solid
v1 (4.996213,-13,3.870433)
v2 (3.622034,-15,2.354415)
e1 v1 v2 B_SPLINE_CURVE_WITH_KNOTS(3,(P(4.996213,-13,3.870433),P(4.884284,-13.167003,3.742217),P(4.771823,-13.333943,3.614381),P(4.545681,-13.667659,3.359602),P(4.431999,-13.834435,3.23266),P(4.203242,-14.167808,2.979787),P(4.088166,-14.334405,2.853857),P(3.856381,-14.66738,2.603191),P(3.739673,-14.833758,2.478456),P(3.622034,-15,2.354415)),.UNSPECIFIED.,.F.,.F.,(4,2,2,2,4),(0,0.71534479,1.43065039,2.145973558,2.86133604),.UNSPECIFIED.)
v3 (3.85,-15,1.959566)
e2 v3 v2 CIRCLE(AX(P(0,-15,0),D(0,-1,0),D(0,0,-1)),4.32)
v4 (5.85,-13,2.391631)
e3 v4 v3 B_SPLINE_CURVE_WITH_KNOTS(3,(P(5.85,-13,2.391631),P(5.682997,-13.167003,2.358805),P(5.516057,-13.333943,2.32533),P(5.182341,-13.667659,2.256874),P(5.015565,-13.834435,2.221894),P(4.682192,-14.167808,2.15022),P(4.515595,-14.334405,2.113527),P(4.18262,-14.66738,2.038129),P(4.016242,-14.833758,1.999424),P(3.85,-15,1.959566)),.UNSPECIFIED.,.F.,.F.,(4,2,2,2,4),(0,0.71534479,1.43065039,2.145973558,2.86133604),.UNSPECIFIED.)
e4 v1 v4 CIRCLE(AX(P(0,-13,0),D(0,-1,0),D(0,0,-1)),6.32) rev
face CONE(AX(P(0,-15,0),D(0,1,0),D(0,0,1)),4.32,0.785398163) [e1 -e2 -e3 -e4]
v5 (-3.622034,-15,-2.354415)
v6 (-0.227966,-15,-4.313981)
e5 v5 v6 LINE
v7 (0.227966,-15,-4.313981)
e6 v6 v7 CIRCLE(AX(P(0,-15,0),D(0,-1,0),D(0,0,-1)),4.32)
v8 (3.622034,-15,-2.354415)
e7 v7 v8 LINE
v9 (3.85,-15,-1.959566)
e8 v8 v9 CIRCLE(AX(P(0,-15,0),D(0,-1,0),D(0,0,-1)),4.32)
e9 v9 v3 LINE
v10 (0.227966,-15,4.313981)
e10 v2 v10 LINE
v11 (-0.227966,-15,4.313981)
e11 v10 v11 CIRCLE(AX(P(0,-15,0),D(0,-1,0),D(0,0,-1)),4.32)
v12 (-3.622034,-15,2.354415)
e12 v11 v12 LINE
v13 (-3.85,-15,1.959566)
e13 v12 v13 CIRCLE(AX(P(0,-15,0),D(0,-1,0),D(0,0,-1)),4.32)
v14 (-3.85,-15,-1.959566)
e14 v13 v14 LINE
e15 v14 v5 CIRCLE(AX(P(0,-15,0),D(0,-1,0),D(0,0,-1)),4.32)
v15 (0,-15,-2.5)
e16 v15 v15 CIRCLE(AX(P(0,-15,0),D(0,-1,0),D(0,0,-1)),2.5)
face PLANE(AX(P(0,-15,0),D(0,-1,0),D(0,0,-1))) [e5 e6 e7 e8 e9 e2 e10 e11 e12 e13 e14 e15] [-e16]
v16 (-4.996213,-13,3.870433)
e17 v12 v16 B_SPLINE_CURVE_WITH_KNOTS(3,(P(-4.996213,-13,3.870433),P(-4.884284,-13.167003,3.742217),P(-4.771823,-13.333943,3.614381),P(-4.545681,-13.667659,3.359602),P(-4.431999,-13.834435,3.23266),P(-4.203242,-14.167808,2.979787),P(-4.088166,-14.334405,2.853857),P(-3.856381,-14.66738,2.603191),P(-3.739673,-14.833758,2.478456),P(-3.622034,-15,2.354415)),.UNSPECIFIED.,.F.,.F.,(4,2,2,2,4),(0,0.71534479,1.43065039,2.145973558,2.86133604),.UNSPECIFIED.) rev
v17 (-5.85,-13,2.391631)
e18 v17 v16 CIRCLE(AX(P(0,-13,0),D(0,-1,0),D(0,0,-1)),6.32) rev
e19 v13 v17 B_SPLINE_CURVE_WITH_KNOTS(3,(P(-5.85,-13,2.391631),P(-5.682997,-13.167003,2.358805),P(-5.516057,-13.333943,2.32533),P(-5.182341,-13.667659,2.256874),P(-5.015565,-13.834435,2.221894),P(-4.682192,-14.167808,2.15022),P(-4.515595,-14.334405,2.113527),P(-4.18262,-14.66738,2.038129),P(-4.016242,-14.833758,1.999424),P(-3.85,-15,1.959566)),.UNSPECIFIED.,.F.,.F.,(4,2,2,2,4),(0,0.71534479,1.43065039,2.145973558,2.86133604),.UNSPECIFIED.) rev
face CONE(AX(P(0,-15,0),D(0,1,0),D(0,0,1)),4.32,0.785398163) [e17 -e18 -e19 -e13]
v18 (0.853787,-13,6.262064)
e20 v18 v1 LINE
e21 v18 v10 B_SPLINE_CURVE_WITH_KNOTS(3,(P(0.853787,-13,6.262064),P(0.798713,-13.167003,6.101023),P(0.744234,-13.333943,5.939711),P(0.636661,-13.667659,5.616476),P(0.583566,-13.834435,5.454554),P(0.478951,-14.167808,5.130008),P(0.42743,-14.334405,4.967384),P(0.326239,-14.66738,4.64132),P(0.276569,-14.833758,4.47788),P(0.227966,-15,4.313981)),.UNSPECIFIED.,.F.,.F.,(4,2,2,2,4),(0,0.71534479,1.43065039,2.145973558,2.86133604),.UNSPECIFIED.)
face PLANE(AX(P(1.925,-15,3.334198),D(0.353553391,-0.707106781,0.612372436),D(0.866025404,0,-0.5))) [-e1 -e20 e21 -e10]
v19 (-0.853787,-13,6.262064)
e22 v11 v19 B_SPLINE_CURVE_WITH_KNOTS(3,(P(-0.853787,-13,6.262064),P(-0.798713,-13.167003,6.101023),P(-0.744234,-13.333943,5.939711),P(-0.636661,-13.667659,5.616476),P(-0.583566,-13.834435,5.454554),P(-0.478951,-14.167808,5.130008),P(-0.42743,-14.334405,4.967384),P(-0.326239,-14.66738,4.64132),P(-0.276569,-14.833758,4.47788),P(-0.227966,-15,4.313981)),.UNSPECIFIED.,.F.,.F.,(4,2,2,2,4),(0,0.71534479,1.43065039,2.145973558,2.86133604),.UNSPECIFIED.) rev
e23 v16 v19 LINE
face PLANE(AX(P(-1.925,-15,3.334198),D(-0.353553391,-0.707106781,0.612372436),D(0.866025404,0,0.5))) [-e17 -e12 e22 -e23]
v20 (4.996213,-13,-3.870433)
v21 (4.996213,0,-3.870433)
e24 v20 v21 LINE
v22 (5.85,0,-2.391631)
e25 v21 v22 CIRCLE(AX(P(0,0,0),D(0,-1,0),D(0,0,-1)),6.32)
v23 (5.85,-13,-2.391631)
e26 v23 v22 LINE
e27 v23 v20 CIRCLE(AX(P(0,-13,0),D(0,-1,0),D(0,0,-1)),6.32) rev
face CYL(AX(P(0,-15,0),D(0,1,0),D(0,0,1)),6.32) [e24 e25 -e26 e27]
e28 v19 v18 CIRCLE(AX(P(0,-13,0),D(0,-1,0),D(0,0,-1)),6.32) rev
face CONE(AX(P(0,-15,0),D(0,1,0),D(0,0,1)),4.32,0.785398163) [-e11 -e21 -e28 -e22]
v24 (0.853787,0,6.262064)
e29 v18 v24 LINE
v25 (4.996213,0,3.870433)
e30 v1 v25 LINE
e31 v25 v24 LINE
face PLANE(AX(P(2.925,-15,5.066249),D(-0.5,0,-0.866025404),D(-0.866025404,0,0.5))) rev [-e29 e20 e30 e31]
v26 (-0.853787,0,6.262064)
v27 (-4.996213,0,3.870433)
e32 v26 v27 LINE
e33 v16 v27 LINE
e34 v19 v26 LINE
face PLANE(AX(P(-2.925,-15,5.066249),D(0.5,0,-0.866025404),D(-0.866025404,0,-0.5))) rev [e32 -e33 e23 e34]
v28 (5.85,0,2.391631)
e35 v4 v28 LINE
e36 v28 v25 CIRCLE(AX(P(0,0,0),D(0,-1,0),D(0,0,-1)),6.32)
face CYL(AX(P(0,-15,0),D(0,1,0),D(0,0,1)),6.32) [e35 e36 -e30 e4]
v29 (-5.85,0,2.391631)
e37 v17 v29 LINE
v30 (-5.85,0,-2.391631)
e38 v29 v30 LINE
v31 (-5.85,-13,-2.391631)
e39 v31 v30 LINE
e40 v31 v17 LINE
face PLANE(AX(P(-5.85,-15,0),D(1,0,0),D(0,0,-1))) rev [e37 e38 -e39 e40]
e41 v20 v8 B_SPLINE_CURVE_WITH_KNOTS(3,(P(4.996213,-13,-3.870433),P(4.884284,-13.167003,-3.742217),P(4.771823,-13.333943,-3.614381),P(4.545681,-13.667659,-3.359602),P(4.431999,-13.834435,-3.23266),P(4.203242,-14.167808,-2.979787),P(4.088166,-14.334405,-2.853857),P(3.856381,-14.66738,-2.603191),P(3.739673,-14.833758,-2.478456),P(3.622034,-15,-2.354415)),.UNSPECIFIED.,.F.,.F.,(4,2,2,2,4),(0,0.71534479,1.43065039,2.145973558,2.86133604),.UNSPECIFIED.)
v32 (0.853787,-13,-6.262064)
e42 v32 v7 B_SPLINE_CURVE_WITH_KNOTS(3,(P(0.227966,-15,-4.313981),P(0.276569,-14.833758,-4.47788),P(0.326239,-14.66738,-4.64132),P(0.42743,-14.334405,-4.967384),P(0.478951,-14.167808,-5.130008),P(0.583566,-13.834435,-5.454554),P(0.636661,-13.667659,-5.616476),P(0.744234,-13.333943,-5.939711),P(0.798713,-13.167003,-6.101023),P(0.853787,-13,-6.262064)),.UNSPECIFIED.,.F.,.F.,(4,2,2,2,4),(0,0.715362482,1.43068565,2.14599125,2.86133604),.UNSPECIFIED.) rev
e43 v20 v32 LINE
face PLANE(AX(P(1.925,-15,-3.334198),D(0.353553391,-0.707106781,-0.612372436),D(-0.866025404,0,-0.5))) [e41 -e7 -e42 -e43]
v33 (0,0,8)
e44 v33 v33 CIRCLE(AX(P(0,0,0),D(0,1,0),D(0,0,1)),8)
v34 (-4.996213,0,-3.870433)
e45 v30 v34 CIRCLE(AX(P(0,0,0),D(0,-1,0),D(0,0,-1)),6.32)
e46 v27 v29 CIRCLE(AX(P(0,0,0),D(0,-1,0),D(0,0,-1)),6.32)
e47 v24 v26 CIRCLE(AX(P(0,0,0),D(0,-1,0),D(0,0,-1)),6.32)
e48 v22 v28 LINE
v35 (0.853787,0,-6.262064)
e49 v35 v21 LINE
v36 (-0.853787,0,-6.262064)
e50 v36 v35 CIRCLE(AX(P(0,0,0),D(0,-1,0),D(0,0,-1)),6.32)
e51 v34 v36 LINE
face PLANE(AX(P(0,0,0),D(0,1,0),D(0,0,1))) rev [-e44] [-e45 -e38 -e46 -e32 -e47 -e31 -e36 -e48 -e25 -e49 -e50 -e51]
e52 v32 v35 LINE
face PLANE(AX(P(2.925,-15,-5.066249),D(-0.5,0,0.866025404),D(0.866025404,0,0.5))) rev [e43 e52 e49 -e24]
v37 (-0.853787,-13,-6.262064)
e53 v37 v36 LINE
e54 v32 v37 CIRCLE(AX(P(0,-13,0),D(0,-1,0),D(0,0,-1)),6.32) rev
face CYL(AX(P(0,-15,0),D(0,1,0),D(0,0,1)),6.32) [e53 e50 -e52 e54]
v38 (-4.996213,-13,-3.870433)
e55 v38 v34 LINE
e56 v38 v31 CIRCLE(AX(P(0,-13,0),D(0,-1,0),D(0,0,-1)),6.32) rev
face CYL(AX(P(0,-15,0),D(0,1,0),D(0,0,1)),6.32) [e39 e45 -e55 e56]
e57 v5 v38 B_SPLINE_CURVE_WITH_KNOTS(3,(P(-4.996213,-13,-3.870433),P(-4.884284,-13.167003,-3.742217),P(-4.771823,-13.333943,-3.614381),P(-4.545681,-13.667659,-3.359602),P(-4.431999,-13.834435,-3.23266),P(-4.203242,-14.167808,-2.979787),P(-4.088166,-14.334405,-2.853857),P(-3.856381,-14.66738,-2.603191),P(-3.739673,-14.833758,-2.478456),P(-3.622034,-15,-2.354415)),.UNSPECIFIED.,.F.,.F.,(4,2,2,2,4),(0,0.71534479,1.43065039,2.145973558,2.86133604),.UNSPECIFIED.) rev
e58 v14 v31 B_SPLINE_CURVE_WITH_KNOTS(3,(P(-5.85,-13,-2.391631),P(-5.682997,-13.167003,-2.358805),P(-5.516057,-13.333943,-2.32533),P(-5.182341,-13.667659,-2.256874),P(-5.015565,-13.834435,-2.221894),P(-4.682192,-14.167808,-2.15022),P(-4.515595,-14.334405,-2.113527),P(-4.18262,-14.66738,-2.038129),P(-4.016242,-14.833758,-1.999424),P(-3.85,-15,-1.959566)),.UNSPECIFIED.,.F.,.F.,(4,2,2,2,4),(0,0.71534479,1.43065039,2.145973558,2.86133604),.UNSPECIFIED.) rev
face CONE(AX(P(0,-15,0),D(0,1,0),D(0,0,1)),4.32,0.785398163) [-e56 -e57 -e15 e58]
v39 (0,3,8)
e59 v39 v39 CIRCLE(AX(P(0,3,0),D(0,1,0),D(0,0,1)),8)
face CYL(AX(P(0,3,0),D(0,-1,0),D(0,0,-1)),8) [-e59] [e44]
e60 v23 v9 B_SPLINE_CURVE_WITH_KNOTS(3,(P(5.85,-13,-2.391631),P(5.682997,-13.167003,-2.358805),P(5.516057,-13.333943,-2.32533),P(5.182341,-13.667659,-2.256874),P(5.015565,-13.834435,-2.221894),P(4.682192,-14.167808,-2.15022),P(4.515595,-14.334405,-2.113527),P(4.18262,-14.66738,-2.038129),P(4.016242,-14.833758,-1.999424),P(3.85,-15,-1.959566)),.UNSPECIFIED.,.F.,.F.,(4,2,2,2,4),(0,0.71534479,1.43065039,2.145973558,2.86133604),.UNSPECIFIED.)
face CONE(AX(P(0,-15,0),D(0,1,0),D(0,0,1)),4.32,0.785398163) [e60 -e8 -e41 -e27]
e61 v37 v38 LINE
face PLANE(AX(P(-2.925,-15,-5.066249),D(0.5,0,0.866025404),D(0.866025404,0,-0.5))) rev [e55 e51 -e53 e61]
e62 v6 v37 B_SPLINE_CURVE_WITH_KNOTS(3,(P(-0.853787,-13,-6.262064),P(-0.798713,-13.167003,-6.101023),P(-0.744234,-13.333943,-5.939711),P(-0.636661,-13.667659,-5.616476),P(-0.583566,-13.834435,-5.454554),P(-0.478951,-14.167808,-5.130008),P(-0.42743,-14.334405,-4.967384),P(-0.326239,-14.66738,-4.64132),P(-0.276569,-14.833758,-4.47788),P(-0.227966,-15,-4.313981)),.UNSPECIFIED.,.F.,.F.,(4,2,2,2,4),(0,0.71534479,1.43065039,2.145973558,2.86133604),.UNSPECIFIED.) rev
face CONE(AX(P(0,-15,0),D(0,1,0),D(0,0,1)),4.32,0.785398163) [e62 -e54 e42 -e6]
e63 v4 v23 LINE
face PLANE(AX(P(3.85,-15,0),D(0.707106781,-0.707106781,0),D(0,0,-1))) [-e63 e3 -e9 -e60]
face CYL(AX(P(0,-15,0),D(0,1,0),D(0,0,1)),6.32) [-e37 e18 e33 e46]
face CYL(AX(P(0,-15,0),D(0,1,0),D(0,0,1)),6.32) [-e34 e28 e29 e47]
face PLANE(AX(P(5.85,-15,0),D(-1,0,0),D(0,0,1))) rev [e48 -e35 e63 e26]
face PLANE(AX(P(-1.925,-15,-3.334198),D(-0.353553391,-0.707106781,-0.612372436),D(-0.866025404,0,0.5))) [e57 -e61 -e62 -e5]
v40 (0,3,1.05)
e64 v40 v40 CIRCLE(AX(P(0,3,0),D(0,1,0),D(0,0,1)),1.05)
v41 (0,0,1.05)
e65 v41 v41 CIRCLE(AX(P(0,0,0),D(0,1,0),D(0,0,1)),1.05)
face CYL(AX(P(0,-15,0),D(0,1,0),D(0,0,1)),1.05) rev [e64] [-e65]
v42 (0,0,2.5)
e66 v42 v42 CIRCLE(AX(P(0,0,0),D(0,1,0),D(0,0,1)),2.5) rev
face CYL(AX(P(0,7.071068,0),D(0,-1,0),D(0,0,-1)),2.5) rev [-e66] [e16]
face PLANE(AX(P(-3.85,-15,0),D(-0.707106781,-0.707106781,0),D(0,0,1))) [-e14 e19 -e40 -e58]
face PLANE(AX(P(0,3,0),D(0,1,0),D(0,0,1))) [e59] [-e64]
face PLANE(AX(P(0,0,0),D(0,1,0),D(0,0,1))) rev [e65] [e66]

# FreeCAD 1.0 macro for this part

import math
import FreeCAD as App
import Part
import Sketcher

V = App.Vector
Q = App.Units.Quantity


def edges_at(feature, points):
    """Names of the edges that pass closest to the given points."""
    edges = feature.Shape.Edges
    near = lambda p: min(range(len(edges)), key=lambda i: edges[i].distToShape(Part.Vertex(*p))[0])
    return sorted({f"Edge{near(p) + 1}" for p in points})

doc = App.newDocument("Part")
body = doc.addObject("PartDesign::Body", "Body")

# Sketch on XZ plane
sketch1 = body.newObject("Sketcher::SketchObject", "Sketch")
sketch1.AttachmentSupport = (doc.getObject("XZ_Plane"), [""])
sketch1.MapMode = "FlatFace"
sketch1.addGeometry(Part.Circle(V(0, 0, 0), V(0, 0, 1), 8), False)
sketch1.addConstraint([
    Sketcher.Constraint("Coincident", 0, 3, -1, 1),
    Sketcher.Constraint("Diameter", 0, Q("16 mm")),
])
pad1 = body.newObject("PartDesign::Pad", "Pad")
pad1.Profile = sketch1
pad1.Length = 3
pad1.Reversed = True

# Sketch on XZ plane
sketch2 = body.newObject("Sketcher::SketchObject", "Sketch001")
sketch2.AttachmentSupport = (doc.getObject("XZ_Plane"), [""])
sketch2.MapMode = "FlatFace"
sketch2.addGeometry([
    Part.ArcOfCircle(Part.Circle(V(0, 0, 0), V(0, 0, 1), 6.32), math.radians(-97.763987), math.radians(-82.236013)),  # 0
    Part.LineSegment(V(0.853787, -6.262064, 0), V(4.996213, -3.870433, 0)),  # 1
    Part.ArcOfCircle(Part.Circle(V(0, 0, 0), V(0, 0, 1), 6.32), math.radians(-37.763987), math.radians(-22.236013)),  # 2
    Part.LineSegment(V(5.85, -2.391631, 0), V(5.85, 2.391631, 0)),  # 3
    Part.ArcOfCircle(Part.Circle(V(0, 0, 0), V(0, 0, 1), 6.32), math.radians(22.236013), math.radians(37.763987)),  # 4
    Part.LineSegment(V(4.996213, 3.870433, 0), V(0.853787, 6.262064, 0)),  # 5
    Part.ArcOfCircle(Part.Circle(V(0, 0, 0), V(0, 0, 1), 6.32), math.radians(82.236013), math.radians(97.763987)),  # 6
    Part.LineSegment(V(-0.853787, 6.262064, 0), V(-4.996213, 3.870433, 0)),  # 7
    Part.ArcOfCircle(Part.Circle(V(0, 0, 0), V(0, 0, 1), 6.32), math.radians(142.236013), math.radians(157.763987)),  # 8
    Part.LineSegment(V(-5.85, 2.391631, 0), V(-5.85, -2.391631, 0)),  # 9
    Part.ArcOfCircle(Part.Circle(V(0, 0, 0), V(0, 0, 1), 6.32), math.radians(-157.763987), math.radians(-142.236013)),  # 10
    Part.LineSegment(V(-4.996213, -3.870433, 0), V(-0.853787, -6.262064, 0)),  # 11
], False)
sketch2.addConstraint([
    Sketcher.Constraint("Coincident", 0, 2, 1, 1),
    Sketcher.Constraint("Coincident", 1, 2, 2, 1),
    Sketcher.Constraint("Coincident", 2, 2, 3, 1),
    Sketcher.Constraint("Coincident", 3, 2, 4, 1),
    Sketcher.Constraint("Coincident", 4, 2, 5, 1),
    Sketcher.Constraint("Coincident", 5, 2, 6, 1),
    Sketcher.Constraint("Coincident", 6, 2, 7, 1),
    Sketcher.Constraint("Coincident", 7, 2, 8, 1),
    Sketcher.Constraint("Coincident", 8, 2, 9, 1),
    Sketcher.Constraint("Coincident", 9, 2, 10, 1),
    Sketcher.Constraint("Coincident", 10, 2, 11, 1),
    Sketcher.Constraint("Coincident", 11, 2, 0, 1),
    Sketcher.Constraint("Vertical", 3),
    Sketcher.Constraint("Vertical", 9),
    Sketcher.Constraint("Coincident", 0, 3, -1, 1),
    Sketcher.Constraint("Coincident", 2, 3, -1, 1),
    Sketcher.Constraint("Coincident", 4, 3, -1, 1),
    Sketcher.Constraint("Coincident", 6, 3, -1, 1),
    Sketcher.Constraint("Coincident", 8, 3, -1, 1),
    Sketcher.Constraint("Coincident", 10, 3, -1, 1),
    Sketcher.Constraint("Equal", 0, 2),
    Sketcher.Constraint("Equal", 2, 4),
    Sketcher.Constraint("Equal", 4, 6),
    Sketcher.Constraint("Equal", 6, 8),
    Sketcher.Constraint("Equal", 8, 10),
    Sketcher.Constraint("Parallel", 1, 7),
    Sketcher.Constraint("Parallel", 5, 11),
    Sketcher.Constraint("Horizontal", 5, 2, 6, 2),
    Sketcher.Constraint("Horizontal", 4, 2, 7, 2),
    Sketcher.Constraint("Horizontal", 3, 2, 8, 2),
    Sketcher.Constraint("Horizontal", 1, 2, 10, 2),
    Sketcher.Constraint("Vertical", 1, 2, 4, 2),
    Sketcher.Constraint("Angle", 1, Q("30 deg")),
    Sketcher.Constraint("Radius", 0, Q("6.32 mm")),
    Sketcher.Constraint("DistanceX", -1, 1, 2, 2, Q("5.85 mm")),
    Sketcher.Constraint("DistanceX", 6, 2, 4, 2, Q("5.85 mm")),
])
pad2 = body.newObject("PartDesign::Pad", "Pad001")
pad2.Profile = sketch2
pad2.Length = 15
doc.recompute()

chamfer = body.newObject("PartDesign::Chamfer", "Chamfer")
chamfer.Base = (pad2, edges_at(pad2, [
    (2.925, -15, -5.066),
    (5.473, -15, -3.16),
    (5.85, -15, 0),
    (5.473, -15, 3.16),
    (2.925, -15, 5.066),
    (0, -15, 6.32),
    (-2.925, -15, 5.066),
    (-5.473, -15, 3.16),
    (-5.85, -15, 0),
    (-5.473, -15, -3.16),
    (-2.925, -15, -5.066),
    (0, -15, -6.32),
]))
chamfer.Size = 2

# Sketch on XZ plane
sketch3 = body.newObject("Sketcher::SketchObject", "Sketch002")
sketch3.AttachmentSupport = (doc.getObject("XZ_Plane"), [""])
sketch3.MapMode = "FlatFace"
sketch3.AttachmentOffset = App.Placement(V(0, 0, 15), App.Rotation())
sketch3.addGeometry(Part.Circle(V(0, 0, 0), V(0, 0, 1), 2.5), False)
sketch3.addConstraint([
    Sketcher.Constraint("Coincident", 0, 3, -1, 1),
    Sketcher.Constraint("Diameter", 0, Q("5 mm")),
])
pocket1 = body.newObject("PartDesign::Pocket", "Pocket")
pocket1.Profile = sketch3
pocket1.Length = 15

# Sketch on XZ plane
sketch4 = body.newObject("Sketcher::SketchObject", "Sketch003")
sketch4.AttachmentSupport = (doc.getObject("XZ_Plane"), [""])
sketch4.MapMode = "FlatFace"
sketch4.AttachmentOffset = App.Placement(V(0, 0, -3), App.Rotation())
sketch4.addGeometry(Part.Circle(V(0, 0, 0), V(0, 0, 1), 1.05), False)
sketch4.addConstraint([
    Sketcher.Constraint("Coincident", 0, 3, -1, 1),
    Sketcher.Constraint("Diameter", 0, Q("2.1 mm")),
])
pocket2 = body.newObject("PartDesign::Pocket", "Pocket001")
pocket2.Profile = sketch4
pocket2.Type = "ThroughAll"
pocket2.Reversed = True

doc.recompute()
